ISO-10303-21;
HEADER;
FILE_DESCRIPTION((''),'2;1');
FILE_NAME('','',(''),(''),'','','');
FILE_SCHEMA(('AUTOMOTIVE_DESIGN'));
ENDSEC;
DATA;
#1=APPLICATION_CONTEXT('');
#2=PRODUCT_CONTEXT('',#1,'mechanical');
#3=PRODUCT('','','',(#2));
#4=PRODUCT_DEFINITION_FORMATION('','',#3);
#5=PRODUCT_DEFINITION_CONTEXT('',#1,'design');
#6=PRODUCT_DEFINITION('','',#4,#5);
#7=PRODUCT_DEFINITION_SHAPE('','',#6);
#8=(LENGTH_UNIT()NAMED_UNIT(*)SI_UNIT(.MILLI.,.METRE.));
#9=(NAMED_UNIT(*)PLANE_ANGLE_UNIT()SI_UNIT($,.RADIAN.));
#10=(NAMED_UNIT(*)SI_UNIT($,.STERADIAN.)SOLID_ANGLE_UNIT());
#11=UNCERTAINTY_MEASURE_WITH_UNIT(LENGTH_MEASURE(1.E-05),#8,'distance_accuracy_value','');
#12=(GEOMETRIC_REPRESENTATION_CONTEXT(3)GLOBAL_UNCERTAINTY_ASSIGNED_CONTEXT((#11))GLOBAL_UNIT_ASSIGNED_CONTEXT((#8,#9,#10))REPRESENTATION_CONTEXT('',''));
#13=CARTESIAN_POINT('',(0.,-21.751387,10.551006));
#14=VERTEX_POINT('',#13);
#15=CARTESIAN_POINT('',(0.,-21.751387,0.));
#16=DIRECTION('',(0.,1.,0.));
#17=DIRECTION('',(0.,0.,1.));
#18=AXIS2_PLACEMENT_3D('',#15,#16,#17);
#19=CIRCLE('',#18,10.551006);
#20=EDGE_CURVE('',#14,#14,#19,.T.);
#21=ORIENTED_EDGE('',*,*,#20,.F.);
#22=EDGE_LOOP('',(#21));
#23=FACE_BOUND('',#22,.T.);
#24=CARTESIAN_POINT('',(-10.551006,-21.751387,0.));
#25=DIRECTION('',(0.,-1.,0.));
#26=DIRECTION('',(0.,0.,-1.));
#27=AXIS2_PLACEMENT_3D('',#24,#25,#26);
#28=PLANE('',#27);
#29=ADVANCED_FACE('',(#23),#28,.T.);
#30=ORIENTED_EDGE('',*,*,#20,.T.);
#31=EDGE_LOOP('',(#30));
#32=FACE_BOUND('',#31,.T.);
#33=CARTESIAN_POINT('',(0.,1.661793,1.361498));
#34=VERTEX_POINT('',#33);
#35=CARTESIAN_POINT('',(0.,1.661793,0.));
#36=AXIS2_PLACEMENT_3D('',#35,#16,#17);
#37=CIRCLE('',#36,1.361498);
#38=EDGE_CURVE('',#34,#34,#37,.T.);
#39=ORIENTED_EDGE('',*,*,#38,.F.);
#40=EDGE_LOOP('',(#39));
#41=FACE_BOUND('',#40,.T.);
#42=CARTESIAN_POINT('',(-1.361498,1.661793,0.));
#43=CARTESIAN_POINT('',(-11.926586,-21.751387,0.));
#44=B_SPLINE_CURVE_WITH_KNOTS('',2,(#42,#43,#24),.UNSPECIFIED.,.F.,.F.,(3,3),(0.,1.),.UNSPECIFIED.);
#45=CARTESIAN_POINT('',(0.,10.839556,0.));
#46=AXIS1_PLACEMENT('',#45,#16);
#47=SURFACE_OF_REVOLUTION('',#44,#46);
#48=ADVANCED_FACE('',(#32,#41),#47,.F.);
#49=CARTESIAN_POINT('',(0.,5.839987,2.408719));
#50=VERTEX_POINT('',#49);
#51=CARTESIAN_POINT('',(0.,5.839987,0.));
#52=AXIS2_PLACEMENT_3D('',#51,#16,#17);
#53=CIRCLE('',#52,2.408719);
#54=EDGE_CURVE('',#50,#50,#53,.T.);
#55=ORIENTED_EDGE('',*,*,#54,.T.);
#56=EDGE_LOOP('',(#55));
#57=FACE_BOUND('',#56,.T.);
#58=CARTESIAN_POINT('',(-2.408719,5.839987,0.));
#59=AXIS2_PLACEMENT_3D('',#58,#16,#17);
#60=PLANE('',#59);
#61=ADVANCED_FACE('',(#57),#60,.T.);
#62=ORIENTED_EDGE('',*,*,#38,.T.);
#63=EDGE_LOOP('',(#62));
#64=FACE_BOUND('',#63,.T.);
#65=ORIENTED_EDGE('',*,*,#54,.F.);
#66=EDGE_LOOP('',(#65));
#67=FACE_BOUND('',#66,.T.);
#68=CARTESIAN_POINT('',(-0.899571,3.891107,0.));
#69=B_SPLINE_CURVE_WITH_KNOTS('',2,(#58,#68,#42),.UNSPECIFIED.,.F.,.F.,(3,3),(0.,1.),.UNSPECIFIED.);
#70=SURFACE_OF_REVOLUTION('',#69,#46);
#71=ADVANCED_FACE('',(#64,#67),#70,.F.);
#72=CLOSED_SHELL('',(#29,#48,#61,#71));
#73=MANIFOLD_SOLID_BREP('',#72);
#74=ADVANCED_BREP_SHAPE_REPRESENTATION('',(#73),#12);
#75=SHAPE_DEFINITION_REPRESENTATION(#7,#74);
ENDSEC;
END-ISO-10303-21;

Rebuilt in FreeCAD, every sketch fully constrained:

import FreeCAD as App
import Part
import Sketcher

V = App.Vector

doc = App.newDocument("Part")
body = doc.addObject("PartDesign::Body", "Body")

# Sketch on XY plane
sketch1 = body.newObject("Sketcher::SketchObject", "Sketch")
sketch1.AttachmentSupport = (doc.getObject("XY_Plane"), [""])
sketch1.MapMode = "FlatFace"
sketch1.addGeometry([
    Part.LineSegment(V(-10.551006, -21.751387, 0), V(0, -21.751387, 0)),  # 0
    Part.LineSegment(V(0, -21.751387, 0), V(0, 5.839987, 0)),  # 1
    Part.LineSegment(V(0, 5.839987, 0), V(-2.408719, 5.839987, 0)),  # 2
    Part.BSplineCurve([V(-1.361498, 1.661793, 0), V(-0.899571, 3.891107, 0), V(-2.408719, 5.839987, 0)], [3, 3], [0, 1], False, 2, [1, 1, 1], False),  # 3
    Part.BSplineCurve([V(-1.361498, 1.661793, 0), V(-11.926586, -21.751387, 0), V(-10.551006, -21.751387, 0)], [3, 3], [0, 1], False, 2, [1, 1, 1], False),  # 4
], False)
sketch1.addConstraint([
    Sketcher.Constraint("Block", 3),
    Sketcher.Constraint("Block", 4),
    Sketcher.Constraint("Coincident", 0, 2, 1, 1),
    Sketcher.Constraint("Coincident", 1, 2, 2, 1),
    Sketcher.Constraint("Coincident", 2, 2, 3, 2),
    Sketcher.Constraint("Coincident", 4, 2, 0, 1),
    Sketcher.Constraint("Horizontal", 0),
    Sketcher.Constraint("Vertical", 1),
    Sketcher.Constraint("Horizontal", 2),
    Sketcher.Constraint("PointOnObject", 0, 2, -2),
])
revolution = body.newObject("PartDesign::Revolution", "Revolution")
revolution.Profile = sketch1
revolution.ReferenceAxis = (sketch1, ["V_Axis"])
revolution.Angle = 360

doc.recompute()
